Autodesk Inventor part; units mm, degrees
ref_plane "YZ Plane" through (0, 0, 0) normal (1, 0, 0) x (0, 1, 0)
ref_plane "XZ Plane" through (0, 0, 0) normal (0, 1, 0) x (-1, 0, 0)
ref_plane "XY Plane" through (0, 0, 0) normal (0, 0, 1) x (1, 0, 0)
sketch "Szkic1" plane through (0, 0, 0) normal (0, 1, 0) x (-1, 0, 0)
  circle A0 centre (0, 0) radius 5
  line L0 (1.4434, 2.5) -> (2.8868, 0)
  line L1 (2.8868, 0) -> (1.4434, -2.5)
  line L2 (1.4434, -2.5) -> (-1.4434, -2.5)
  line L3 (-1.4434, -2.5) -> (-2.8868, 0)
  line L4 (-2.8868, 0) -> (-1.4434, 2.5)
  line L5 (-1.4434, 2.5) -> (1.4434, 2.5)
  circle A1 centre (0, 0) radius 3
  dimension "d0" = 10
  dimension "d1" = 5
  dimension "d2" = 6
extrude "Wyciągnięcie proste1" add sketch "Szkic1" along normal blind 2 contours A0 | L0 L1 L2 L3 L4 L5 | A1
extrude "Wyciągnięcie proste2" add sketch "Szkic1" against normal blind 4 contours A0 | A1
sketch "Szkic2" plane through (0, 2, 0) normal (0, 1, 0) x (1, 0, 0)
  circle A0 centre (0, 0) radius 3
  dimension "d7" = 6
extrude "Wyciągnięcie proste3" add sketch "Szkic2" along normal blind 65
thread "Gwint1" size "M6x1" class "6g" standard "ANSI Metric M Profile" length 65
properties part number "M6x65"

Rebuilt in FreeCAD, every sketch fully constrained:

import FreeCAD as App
import Part
import Sketcher
from FreeCAD import Vector
Q = App.Units.Quantity

doc = App.newDocument("Part")
body = doc.addObject("PartDesign::Body", "Body")

sketch1 = body.newObject("Sketcher::SketchObject", "Sketch")
sketch1.AttachmentSupport = (doc.getObject("XZ_Plane"), [""])
sketch1.MapMode = "FlatFace"
sketch1.addGeometry(Part.Circle(Vector(0, 0, 0), Vector(0, 0, 1), 5), False)
sketch1.addConstraint([
    Sketcher.Constraint("Coincident", 0, 3, -1, 1),
    Sketcher.Constraint("Diameter", 0, Q("10 mm")),
])
pad1 = body.newObject("PartDesign::Pad", "Pad")
pad1.Profile = sketch1
pad1.Length = 2
pad1.Reversed = True

sketch2 = body.newObject("Sketcher::SketchObject", "Sketch001")
sketch2.AttachmentSupport = (doc.getObject("XZ_Plane"), [""])
sketch2.MapMode = "FlatFace"
sketch2.addGeometry([
    Part.Circle(Vector(0, 0, 0), Vector(0, 0, 1), 5),
    Part.LineSegment(Vector(-1.4, 2.5, 0), Vector(-2.9, 0, 0)),
    Part.LineSegment(Vector(-2.9, 0, 0), Vector(-1.4, -2.5, 0)),
    Part.LineSegment(Vector(-1.4, -2.5, 0), Vector(1.4, -2.5, 0)),
    Part.LineSegment(Vector(1.4, -2.5, 0), Vector(2.9, 0, 0)),
    Part.LineSegment(Vector(2.9, 0, 0), Vector(1.4, 2.5, 0)),
    Part.LineSegment(Vector(1.4, 2.5, 0), Vector(-1.4, 2.5, 0)),
], False)
sketch2.addConstraint([
    Sketcher.Constraint("Coincident", 1, 2, 2, 1),
    Sketcher.Constraint("Coincident", 2, 2, 3, 1),
    Sketcher.Constraint("Coincident", 3, 2, 4, 1),
    Sketcher.Constraint("Coincident", 4, 2, 5, 1),
    Sketcher.Constraint("Coincident", 5, 2, 6, 1),
    Sketcher.Constraint("Coincident", 6, 2, 1, 1),
    Sketcher.Constraint("Horizontal", 3),
    Sketcher.Constraint("Horizontal", 6),
    Sketcher.Constraint("Coincident", 0, 3, -1, 1),
    Sketcher.Constraint("Symmetric", 1, 2, 4, 2, -1, 1),
    Sketcher.Constraint("Symmetric", 2, 2, 5, 2, -1, 1),
    Sketcher.Constraint("PointOnObject", 1, 2, -1),
    Sketcher.Constraint("Parallel", 1, 4),
    Sketcher.Constraint("Vertical", 3, 2, 5, 2),
    Sketcher.Constraint("Diameter", 0, Q("10 mm")),
    Sketcher.Constraint("DistanceY", 3, 2, 5, 2, Q("5 mm")),
    Sketcher.Constraint("Angle", 1, Q("-120.0004 deg")),
    Sketcher.Constraint("DistanceX", 3, 1, 3, 2, Q("2.8868 mm")),
])
pad2 = body.newObject("PartDesign::Pad", "Pad001")
pad2.Profile = sketch2
pad2.Length = 4

sketch3 = body.newObject("Sketcher::SketchObject", "Sketch002")
sketch3.AttachmentSupport = (doc.getObject("XZ_Plane"), [""])
sketch3.MapMode = "FlatFace"
sketch3.AttachmentOffset = App.Placement(Vector(0, 0, -2), App.Rotation())
sketch3.addGeometry(Part.Circle(Vector(0, 0, 0), Vector(0, 0, 1), 3), False)
sketch3.addConstraint([
    Sketcher.Constraint("Coincident", 0, 3, -1, 1),
    Sketcher.Constraint("Diameter", 0, Q("6 mm")),
])
pad3 = body.newObject("PartDesign::Pad", "Pad002")
pad3.Profile = sketch3
pad3.Length = 65
pad3.Reversed = True

doc.recompute()
